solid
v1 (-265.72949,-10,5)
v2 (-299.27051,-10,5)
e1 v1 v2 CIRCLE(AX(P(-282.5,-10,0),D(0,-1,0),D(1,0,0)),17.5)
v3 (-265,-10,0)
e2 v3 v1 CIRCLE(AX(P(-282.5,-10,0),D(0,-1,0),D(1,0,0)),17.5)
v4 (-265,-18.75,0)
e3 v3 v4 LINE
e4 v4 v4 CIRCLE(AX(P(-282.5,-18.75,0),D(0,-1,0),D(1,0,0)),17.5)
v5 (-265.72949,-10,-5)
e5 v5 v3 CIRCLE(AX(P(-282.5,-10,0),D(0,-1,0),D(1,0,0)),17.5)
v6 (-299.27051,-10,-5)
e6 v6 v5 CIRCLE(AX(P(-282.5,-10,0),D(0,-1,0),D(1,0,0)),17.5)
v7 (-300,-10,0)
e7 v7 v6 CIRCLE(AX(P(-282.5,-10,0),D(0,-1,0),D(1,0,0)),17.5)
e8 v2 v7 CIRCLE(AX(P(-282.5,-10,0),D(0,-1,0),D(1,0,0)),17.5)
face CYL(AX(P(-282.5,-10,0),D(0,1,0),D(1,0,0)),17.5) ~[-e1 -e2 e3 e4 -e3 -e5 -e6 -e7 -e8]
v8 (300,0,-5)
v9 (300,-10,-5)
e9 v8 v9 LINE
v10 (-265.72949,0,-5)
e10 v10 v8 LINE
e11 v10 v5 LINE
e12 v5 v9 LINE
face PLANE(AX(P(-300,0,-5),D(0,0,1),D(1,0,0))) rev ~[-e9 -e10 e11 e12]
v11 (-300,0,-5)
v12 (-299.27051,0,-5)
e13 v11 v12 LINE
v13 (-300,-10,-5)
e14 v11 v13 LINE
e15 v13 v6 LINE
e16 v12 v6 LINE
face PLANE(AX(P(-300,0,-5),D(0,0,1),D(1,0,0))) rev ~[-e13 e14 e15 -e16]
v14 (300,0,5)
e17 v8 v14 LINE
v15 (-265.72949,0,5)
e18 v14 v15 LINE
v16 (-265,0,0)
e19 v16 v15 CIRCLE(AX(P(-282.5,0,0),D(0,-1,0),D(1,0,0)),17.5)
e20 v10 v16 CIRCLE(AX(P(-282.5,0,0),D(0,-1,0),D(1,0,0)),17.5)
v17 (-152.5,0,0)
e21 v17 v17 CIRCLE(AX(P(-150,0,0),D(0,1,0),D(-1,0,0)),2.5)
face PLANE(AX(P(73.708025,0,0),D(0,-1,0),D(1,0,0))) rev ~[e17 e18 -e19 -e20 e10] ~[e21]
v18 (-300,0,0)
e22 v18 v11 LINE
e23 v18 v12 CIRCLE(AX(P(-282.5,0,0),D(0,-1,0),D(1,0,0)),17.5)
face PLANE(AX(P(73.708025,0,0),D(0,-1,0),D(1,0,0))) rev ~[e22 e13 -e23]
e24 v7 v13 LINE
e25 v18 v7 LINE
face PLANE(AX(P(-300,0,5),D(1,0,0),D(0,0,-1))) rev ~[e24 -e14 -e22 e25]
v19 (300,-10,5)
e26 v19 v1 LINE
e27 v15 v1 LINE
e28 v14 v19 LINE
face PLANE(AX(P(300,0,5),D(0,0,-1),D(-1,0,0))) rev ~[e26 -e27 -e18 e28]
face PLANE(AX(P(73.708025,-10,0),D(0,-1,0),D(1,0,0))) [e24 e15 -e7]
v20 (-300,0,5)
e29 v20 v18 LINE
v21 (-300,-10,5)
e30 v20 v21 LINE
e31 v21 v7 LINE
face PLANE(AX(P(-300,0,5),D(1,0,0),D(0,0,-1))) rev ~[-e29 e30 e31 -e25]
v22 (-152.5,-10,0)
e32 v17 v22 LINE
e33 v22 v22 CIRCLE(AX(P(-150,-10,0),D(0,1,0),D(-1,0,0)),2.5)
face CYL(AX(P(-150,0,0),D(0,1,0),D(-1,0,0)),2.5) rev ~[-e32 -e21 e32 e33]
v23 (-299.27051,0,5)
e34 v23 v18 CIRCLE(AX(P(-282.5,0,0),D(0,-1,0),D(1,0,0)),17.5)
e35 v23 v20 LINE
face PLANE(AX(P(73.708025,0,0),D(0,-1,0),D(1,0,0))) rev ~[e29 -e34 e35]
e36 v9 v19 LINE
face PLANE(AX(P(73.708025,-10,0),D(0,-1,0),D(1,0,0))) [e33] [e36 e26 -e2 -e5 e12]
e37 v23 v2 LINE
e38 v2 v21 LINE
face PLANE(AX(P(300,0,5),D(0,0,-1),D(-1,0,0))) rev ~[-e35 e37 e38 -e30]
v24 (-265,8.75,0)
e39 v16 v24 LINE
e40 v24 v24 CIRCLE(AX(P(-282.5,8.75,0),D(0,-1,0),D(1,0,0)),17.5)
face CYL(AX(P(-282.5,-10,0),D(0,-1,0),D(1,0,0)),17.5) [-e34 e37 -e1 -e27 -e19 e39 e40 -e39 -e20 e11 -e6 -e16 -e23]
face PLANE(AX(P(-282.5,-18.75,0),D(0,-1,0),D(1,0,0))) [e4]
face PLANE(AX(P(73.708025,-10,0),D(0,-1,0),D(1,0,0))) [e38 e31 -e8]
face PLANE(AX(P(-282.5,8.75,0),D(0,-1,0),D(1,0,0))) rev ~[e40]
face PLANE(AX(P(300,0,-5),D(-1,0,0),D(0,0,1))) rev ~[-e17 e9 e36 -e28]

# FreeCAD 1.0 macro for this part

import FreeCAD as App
import Part
import Sketcher


def add_polygon(sketch, points):
    """Adds a closed chain of lines whose ends are joined by coincident constraints."""
    first, n = sketch.GeometryCount, len(points)
    for a, b in zip(points, points[1:] + points[:1]):
        sketch.addGeometry(Part.LineSegment(App.Vector(*a, 0), App.Vector(*b, 0)), False)
    for i in range(n):
        sketch.addConstraint(Sketcher.Constraint("Coincident", first + i, 2, first + (i + 1) % n, 1))

doc = App.newDocument("Part")
body = doc.addObject("PartDesign::Body", "Body")

sketch1 = body.newObject("Sketcher::SketchObject", "Sketch")
sketch1.AttachmentSupport = (doc.getObject("XZ_Plane"), [""])
sketch1.MapMode = "FlatFace"
add_polygon(sketch1, [(300, -5), (300, 5), (-300, 5), (-300, -5)])
sketch1.addGeometry(Part.Circle(App.Vector(-150, 0, 0), App.Vector(0, 0, 1), 2.5), False)
sketch1.addConstraint([
    Sketcher.Constraint("Vertical", 0),
    Sketcher.Constraint("Horizontal", 1),
    Sketcher.Constraint("Vertical", 2),
    Sketcher.Constraint("Horizontal", 3),
    Sketcher.Constraint("Symmetric", 0, 2, 2, 2, -1, 1),
    Sketcher.Constraint("PointOnObject", 4, 3, -1),
    Sketcher.Constraint("Diameter", 4, 5.0),
    Sketcher.Constraint("DistanceX", 1, 2, 1, 1, 600.0),
    Sketcher.Constraint("DistanceY", 0, 1, 0, 2, 10.0),
    Sketcher.Constraint("DistanceX", 4, 3, -1, 1, 150.0),
])
pad1 = body.newObject("PartDesign::Pad", "Pad")
pad1.Profile = sketch1
pad1.Length = 10

sketch2 = body.newObject("Sketcher::SketchObject", "Sketch001")
sketch2.AttachmentSupport = (doc.getObject("XZ_Plane"), [""])
sketch2.MapMode = "FlatFace"
sketch2.AttachmentOffset = App.Placement(App.Vector(0, 0, 10), App.Rotation())
sketch2.addGeometry(Part.Circle(App.Vector(-282, 0, 0), App.Vector(0, 0, 1), 18), False)
sketch2.addConstraint([
    Sketcher.Constraint("PointOnObject", 0, 3, -1),
    Sketcher.Constraint("Diameter", 0, 35.0),
    Sketcher.Constraint("DistanceX", 0, 3, -1, 1, 282.5),
])
pad2 = body.newObject("PartDesign::Pad", "Pad001")
pad2.Profile = sketch2
pad2.Type = "TwoLengths"
pad2.Length = 8.75
pad2.Length2 = 18.75

doc.recompute()
